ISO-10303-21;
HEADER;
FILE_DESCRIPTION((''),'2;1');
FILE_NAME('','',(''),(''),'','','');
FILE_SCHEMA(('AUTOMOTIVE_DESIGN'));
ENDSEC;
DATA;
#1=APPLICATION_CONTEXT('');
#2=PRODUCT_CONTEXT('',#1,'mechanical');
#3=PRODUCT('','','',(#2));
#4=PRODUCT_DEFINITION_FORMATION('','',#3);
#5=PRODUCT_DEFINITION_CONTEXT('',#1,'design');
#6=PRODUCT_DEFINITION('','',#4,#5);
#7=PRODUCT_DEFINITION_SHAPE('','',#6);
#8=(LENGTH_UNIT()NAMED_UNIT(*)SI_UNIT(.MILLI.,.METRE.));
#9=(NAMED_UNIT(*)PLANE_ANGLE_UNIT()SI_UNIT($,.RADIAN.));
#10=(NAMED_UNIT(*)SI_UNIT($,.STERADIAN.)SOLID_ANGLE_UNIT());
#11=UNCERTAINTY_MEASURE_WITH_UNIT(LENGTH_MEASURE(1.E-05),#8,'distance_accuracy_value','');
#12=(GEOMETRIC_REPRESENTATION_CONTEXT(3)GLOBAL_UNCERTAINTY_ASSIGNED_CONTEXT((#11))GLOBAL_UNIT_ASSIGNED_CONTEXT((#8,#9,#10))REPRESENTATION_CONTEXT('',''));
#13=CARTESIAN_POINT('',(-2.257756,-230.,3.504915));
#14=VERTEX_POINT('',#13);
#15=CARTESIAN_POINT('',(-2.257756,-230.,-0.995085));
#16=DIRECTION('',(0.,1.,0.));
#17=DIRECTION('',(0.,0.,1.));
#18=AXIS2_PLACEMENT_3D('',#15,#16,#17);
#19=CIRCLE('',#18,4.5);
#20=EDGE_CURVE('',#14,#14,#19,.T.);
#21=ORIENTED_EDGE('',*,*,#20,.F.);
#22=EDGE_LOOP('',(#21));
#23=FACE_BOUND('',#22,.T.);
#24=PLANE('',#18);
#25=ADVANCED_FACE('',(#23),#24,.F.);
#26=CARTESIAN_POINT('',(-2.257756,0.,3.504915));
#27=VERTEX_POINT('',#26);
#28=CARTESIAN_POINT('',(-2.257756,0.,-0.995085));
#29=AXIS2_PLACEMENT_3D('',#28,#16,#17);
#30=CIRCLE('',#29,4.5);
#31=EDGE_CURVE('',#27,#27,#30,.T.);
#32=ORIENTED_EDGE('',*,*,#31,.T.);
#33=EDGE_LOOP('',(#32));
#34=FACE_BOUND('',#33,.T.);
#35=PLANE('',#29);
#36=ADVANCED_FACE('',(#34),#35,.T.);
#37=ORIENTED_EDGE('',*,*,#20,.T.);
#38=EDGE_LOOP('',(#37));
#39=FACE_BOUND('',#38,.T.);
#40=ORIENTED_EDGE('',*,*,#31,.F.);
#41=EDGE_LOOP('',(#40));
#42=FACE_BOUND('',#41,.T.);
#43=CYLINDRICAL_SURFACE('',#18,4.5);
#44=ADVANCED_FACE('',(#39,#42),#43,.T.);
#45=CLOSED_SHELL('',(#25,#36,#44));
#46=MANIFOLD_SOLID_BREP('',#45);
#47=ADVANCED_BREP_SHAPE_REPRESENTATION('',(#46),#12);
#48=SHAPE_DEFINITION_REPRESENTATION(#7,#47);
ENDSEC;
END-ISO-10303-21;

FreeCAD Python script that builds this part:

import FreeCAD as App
import Part
import Sketcher
from FreeCAD import Vector

doc = App.newDocument("Part")
body = doc.addObject("PartDesign::Body", "Body")

sketch1 = body.newObject("Sketcher::SketchObject", "Sketch")
sketch1.AttachmentSupport = (doc.getObject("XZ_Plane"), [""])
sketch1.MapMode = "FlatFace"
sketch1.addGeometry(Part.Circle(Vector(-2.3, -1, 0), Vector(0, 0, 1), 4.5), False)
sketch1.addConstraint([
    Sketcher.Constraint("Diameter", 0, 9.0),
    Sketcher.Constraint("DistanceX", 0, 3, -1, 1, 2.257756),
    Sketcher.Constraint("DistanceY", 0, 3, -1, 1, 0.995085),
])
pad1 = body.newObject("PartDesign::Pad", "Pad")
pad1.Profile = sketch1
pad1.Length = 230

doc.recompute()
